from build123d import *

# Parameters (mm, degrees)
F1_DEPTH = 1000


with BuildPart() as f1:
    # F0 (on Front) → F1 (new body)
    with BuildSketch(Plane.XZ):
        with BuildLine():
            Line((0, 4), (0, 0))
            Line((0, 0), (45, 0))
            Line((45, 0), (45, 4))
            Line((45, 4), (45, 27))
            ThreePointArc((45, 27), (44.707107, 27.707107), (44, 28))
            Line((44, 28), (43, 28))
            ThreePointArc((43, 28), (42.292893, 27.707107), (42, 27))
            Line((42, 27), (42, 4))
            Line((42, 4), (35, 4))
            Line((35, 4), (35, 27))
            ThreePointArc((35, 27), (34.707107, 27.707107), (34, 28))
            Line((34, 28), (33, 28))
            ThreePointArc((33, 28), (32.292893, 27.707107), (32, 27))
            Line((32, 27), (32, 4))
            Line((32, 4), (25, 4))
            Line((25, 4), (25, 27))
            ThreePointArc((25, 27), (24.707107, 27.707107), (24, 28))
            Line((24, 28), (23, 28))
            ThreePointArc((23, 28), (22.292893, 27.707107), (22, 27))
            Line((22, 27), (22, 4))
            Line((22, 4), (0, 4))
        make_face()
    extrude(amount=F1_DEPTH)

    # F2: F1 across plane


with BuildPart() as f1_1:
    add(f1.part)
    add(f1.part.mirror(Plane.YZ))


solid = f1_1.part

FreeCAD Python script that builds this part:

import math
import FreeCAD as App
import Part
import Sketcher
Q = App.Units.Quantity

doc = App.newDocument("Part")
params = doc.addObject("Spreadsheet::Sheet", "Params")
for row, (alias, value) in enumerate([
    ("sketch1_radius", "0.999999 mm"),
    ("sketch1_width", "45 mm"),
    ("sketch1_width2", "1 mm"),
    ("sketch1_width3", "7 mm"),
    ("sketch1_height", "4 mm"),
    ("pad1_length", "1000 mm"),
], start=1):
    params.set(f"A{row}", alias)
    params.set(f"B{row}", "=" + value)
    params.setAlias(f"B{row}", alias)

body = doc.addObject("PartDesign::Body", "Body")

# Sketch on XZ plane
sketch1 = body.newObject("Sketcher::SketchObject", "Sketch")
sketch1.AttachmentSupport = (doc.getObject("XZ_Plane"), [""])
sketch1.MapMode = "FlatFace"
sketch1.addGeometry(Part.LineSegment(App.Vector(0, 4, 0), App.Vector(0, 0, 0)), False)
sketch1.addGeometry(Part.LineSegment(App.Vector(0, 0, 0), App.Vector(45, 0, 0)), False)
sketch1.addGeometry(Part.LineSegment(App.Vector(45, 0, 0), App.Vector(45, 27, 0)), False)
sketch1.addGeometry(Part.ArcOfCircle(Part.Circle(App.Vector(44, 27, 0), App.Vector(0, 0, 1), 1), math.radians(0), math.radians(90)), False)
sketch1.addGeometry(Part.LineSegment(App.Vector(44, 28, 0), App.Vector(43, 28, 0)), False)
sketch1.addGeometry(Part.ArcOfCircle(Part.Circle(App.Vector(43, 27, 0), App.Vector(0, 0, 1), 1), math.radians(90), math.radians(180)), False)
sketch1.addGeometry(Part.LineSegment(App.Vector(42, 27, 0), App.Vector(42, 4, 0)), False)
sketch1.addGeometry(Part.LineSegment(App.Vector(42, 4, 0), App.Vector(35, 4, 0)), False)
sketch1.addGeometry(Part.LineSegment(App.Vector(35, 4, 0), App.Vector(35, 27, 0)), False)
sketch1.addGeometry(Part.ArcOfCircle(Part.Circle(App.Vector(34, 27, 0), App.Vector(0, 0, 1), 1), math.radians(0), math.radians(90)), False)
sketch1.addGeometry(Part.LineSegment(App.Vector(34, 28, 0), App.Vector(33, 28, 0)), False)
sketch1.addGeometry(Part.ArcOfCircle(Part.Circle(App.Vector(33, 27, 0), App.Vector(0, 0, 1), 1), math.radians(90), math.radians(180)), False)
sketch1.addGeometry(Part.LineSegment(App.Vector(32, 27, 0), App.Vector(32, 4, 0)), False)
sketch1.addGeometry(Part.LineSegment(App.Vector(32, 4, 0), App.Vector(25, 4, 0)), False)
sketch1.addGeometry(Part.LineSegment(App.Vector(25, 4, 0), App.Vector(25, 27, 0)), False)
sketch1.addGeometry(Part.ArcOfCircle(Part.Circle(App.Vector(24, 27, 0), App.Vector(0, 0, 1), 1), math.radians(0), math.radians(90)), False)
sketch1.addGeometry(Part.LineSegment(App.Vector(24, 28, 0), App.Vector(23, 28, 0)), False)
sketch1.addGeometry(Part.ArcOfCircle(Part.Circle(App.Vector(23, 27, 0), App.Vector(0, 0, 1), 1), math.radians(90), math.radians(180)), False)
sketch1.addGeometry(Part.LineSegment(App.Vector(22, 27, 0), App.Vector(22, 4, 0)), False)
sketch1.addGeometry(Part.LineSegment(App.Vector(22, 4, 0), App.Vector(0, 4, 0)), False)
sketch1.addConstraint(Sketcher.Constraint("Coincident", 0, 2, 1, 1))
sketch1.addConstraint(Sketcher.Constraint("Coincident", 1, 2, 2, 1))
sketch1.addConstraint(Sketcher.Constraint("Tangent", 2, 2, 3, 1))
sketch1.addConstraint(Sketcher.Constraint("Tangent", 3, 2, 4, 1))
sketch1.addConstraint(Sketcher.Constraint("Tangent", 4, 2, 5, 1))
sketch1.addConstraint(Sketcher.Constraint("Tangent", 5, 2, 6, 1))
sketch1.addConstraint(Sketcher.Constraint("Coincident", 6, 2, 7, 1))
sketch1.addConstraint(Sketcher.Constraint("Coincident", 7, 2, 8, 1))
sketch1.addConstraint(Sketcher.Constraint("Tangent", 8, 2, 9, 1))
sketch1.addConstraint(Sketcher.Constraint("Tangent", 9, 2, 10, 1))
sketch1.addConstraint(Sketcher.Constraint("Tangent", 10, 2, 11, 1))
sketch1.addConstraint(Sketcher.Constraint("Tangent", 11, 2, 12, 1))
sketch1.addConstraint(Sketcher.Constraint("Coincident", 12, 2, 13, 1))
sketch1.addConstraint(Sketcher.Constraint("Coincident", 13, 2, 14, 1))
sketch1.addConstraint(Sketcher.Constraint("Tangent", 14, 2, 15, 1))
sketch1.addConstraint(Sketcher.Constraint("Tangent", 15, 2, 16, 1))
sketch1.addConstraint(Sketcher.Constraint("Tangent", 16, 2, 17, 1))
sketch1.addConstraint(Sketcher.Constraint("Tangent", 17, 2, 18, 1))
sketch1.addConstraint(Sketcher.Constraint("Coincident", 18, 2, 19, 1))
sketch1.addConstraint(Sketcher.Constraint("Coincident", 19, 2, 0, 1))
sketch1.addConstraint(Sketcher.Constraint("Vertical", 0))
sketch1.addConstraint(Sketcher.Constraint("Horizontal", 1))
sketch1.addConstraint(Sketcher.Constraint("Vertical", 2))
sketch1.addConstraint(Sketcher.Constraint("Horizontal", 4))
sketch1.addConstraint(Sketcher.Constraint("Vertical", 6))
sketch1.addConstraint(Sketcher.Constraint("Horizontal", 7))
sketch1.addConstraint(Sketcher.Constraint("Vertical", 8))
sketch1.addConstraint(Sketcher.Constraint("Horizontal", 10))
sketch1.addConstraint(Sketcher.Constraint("Vertical", 12))
sketch1.addConstraint(Sketcher.Constraint("Horizontal", 13))
sketch1.addConstraint(Sketcher.Constraint("Vertical", 14))
sketch1.addConstraint(Sketcher.Constraint("Horizontal", 16))
sketch1.addConstraint(Sketcher.Constraint("Vertical", 18))
sketch1.addConstraint(Sketcher.Constraint("Horizontal", 19))
sketch1.addConstraint(Sketcher.Constraint("Coincident", 0, 2, -1, 1))
sketch1.addConstraint(Sketcher.Constraint("Equal", 3, 5))
sketch1.addConstraint(Sketcher.Constraint("Equal", 5, 9))
sketch1.addConstraint(Sketcher.Constraint("Equal", 9, 11))
sketch1.addConstraint(Sketcher.Constraint("Equal", 11, 15))
sketch1.addConstraint(Sketcher.Constraint("Equal", 15, 17))
sketch1.addConstraint(Sketcher.Constraint("Horizontal", 5, 3, 9, 3))
sketch1.addConstraint(Sketcher.Constraint("Horizontal", 11, 3, 15, 3))
sketch1.addConstraint(Sketcher.Constraint("Horizontal", 7, 2, 12, 2))
sketch1.addConstraint(Sketcher.Constraint("Horizontal", 13, 2, 18, 2))
sketch1.addConstraint(Sketcher.Constraint("Equal", 4, 10))
sketch1.addConstraint(Sketcher.Constraint("Equal", 7, 13))
sketch1.addConstraint(Sketcher.Constraint("Equal", 10, 16))
sketch1.addConstraint(Sketcher.Constraint("Radius", 3, Q("0.999999 mm")))
sketch1.addConstraint(Sketcher.Constraint("DistanceX", 1, 1, 1, 2, Q("45 mm")))
sketch1.addConstraint(Sketcher.Constraint("DistanceX", 4, 2, 4, 1, Q("1 mm")))
sketch1.addConstraint(Sketcher.Constraint("DistanceX", 7, 2, 7, 1, Q("7 mm")))
sketch1.addConstraint(Sketcher.Constraint("DistanceY", 0, 2, 0, 1, Q("4 mm")))
sketch1.addConstraint(Sketcher.Constraint("DistanceY", 2, 1, 2, 2, Q("27 mm")))
sketch1.setExpression("Constraints[47]", "Params.sketch1_radius")
sketch1.setExpression("Constraints[48]", "Params.sketch1_width")
sketch1.setExpression("Constraints[49]", "Params.sketch1_width2")
sketch1.setExpression("Constraints[50]", "Params.sketch1_width3")
sketch1.setExpression("Constraints[51]", "Params.sketch1_height")
pad1 = body.newObject("PartDesign::Pad", "Pad")
pad1.Profile = sketch1
pad1.setExpression("Length", "Params.pad1_length")
body2 = doc.addObject("PartDesign::Body", "Body001")
doc.recompute()

body2.BaseFeature = body
doc.recompute()

mirroring = doc.addObject("Part::Mirroring", "Mirroring")
mirroring.Source = body
mirroring.Base = App.Vector(0, 0, 0)
mirroring.Normal = App.Vector(1, 0, 0)
body3 = doc.addObject("PartDesign::Body", "Body002")
body3.BaseFeature = mirroring
boolean = body2.newObject("PartDesign::Boolean", "Boolean")
boolean.Type = "Fuse"
boolean.addObjects([body3])
doc.recompute()
mirroring.Visibility = False

doc.recompute()
